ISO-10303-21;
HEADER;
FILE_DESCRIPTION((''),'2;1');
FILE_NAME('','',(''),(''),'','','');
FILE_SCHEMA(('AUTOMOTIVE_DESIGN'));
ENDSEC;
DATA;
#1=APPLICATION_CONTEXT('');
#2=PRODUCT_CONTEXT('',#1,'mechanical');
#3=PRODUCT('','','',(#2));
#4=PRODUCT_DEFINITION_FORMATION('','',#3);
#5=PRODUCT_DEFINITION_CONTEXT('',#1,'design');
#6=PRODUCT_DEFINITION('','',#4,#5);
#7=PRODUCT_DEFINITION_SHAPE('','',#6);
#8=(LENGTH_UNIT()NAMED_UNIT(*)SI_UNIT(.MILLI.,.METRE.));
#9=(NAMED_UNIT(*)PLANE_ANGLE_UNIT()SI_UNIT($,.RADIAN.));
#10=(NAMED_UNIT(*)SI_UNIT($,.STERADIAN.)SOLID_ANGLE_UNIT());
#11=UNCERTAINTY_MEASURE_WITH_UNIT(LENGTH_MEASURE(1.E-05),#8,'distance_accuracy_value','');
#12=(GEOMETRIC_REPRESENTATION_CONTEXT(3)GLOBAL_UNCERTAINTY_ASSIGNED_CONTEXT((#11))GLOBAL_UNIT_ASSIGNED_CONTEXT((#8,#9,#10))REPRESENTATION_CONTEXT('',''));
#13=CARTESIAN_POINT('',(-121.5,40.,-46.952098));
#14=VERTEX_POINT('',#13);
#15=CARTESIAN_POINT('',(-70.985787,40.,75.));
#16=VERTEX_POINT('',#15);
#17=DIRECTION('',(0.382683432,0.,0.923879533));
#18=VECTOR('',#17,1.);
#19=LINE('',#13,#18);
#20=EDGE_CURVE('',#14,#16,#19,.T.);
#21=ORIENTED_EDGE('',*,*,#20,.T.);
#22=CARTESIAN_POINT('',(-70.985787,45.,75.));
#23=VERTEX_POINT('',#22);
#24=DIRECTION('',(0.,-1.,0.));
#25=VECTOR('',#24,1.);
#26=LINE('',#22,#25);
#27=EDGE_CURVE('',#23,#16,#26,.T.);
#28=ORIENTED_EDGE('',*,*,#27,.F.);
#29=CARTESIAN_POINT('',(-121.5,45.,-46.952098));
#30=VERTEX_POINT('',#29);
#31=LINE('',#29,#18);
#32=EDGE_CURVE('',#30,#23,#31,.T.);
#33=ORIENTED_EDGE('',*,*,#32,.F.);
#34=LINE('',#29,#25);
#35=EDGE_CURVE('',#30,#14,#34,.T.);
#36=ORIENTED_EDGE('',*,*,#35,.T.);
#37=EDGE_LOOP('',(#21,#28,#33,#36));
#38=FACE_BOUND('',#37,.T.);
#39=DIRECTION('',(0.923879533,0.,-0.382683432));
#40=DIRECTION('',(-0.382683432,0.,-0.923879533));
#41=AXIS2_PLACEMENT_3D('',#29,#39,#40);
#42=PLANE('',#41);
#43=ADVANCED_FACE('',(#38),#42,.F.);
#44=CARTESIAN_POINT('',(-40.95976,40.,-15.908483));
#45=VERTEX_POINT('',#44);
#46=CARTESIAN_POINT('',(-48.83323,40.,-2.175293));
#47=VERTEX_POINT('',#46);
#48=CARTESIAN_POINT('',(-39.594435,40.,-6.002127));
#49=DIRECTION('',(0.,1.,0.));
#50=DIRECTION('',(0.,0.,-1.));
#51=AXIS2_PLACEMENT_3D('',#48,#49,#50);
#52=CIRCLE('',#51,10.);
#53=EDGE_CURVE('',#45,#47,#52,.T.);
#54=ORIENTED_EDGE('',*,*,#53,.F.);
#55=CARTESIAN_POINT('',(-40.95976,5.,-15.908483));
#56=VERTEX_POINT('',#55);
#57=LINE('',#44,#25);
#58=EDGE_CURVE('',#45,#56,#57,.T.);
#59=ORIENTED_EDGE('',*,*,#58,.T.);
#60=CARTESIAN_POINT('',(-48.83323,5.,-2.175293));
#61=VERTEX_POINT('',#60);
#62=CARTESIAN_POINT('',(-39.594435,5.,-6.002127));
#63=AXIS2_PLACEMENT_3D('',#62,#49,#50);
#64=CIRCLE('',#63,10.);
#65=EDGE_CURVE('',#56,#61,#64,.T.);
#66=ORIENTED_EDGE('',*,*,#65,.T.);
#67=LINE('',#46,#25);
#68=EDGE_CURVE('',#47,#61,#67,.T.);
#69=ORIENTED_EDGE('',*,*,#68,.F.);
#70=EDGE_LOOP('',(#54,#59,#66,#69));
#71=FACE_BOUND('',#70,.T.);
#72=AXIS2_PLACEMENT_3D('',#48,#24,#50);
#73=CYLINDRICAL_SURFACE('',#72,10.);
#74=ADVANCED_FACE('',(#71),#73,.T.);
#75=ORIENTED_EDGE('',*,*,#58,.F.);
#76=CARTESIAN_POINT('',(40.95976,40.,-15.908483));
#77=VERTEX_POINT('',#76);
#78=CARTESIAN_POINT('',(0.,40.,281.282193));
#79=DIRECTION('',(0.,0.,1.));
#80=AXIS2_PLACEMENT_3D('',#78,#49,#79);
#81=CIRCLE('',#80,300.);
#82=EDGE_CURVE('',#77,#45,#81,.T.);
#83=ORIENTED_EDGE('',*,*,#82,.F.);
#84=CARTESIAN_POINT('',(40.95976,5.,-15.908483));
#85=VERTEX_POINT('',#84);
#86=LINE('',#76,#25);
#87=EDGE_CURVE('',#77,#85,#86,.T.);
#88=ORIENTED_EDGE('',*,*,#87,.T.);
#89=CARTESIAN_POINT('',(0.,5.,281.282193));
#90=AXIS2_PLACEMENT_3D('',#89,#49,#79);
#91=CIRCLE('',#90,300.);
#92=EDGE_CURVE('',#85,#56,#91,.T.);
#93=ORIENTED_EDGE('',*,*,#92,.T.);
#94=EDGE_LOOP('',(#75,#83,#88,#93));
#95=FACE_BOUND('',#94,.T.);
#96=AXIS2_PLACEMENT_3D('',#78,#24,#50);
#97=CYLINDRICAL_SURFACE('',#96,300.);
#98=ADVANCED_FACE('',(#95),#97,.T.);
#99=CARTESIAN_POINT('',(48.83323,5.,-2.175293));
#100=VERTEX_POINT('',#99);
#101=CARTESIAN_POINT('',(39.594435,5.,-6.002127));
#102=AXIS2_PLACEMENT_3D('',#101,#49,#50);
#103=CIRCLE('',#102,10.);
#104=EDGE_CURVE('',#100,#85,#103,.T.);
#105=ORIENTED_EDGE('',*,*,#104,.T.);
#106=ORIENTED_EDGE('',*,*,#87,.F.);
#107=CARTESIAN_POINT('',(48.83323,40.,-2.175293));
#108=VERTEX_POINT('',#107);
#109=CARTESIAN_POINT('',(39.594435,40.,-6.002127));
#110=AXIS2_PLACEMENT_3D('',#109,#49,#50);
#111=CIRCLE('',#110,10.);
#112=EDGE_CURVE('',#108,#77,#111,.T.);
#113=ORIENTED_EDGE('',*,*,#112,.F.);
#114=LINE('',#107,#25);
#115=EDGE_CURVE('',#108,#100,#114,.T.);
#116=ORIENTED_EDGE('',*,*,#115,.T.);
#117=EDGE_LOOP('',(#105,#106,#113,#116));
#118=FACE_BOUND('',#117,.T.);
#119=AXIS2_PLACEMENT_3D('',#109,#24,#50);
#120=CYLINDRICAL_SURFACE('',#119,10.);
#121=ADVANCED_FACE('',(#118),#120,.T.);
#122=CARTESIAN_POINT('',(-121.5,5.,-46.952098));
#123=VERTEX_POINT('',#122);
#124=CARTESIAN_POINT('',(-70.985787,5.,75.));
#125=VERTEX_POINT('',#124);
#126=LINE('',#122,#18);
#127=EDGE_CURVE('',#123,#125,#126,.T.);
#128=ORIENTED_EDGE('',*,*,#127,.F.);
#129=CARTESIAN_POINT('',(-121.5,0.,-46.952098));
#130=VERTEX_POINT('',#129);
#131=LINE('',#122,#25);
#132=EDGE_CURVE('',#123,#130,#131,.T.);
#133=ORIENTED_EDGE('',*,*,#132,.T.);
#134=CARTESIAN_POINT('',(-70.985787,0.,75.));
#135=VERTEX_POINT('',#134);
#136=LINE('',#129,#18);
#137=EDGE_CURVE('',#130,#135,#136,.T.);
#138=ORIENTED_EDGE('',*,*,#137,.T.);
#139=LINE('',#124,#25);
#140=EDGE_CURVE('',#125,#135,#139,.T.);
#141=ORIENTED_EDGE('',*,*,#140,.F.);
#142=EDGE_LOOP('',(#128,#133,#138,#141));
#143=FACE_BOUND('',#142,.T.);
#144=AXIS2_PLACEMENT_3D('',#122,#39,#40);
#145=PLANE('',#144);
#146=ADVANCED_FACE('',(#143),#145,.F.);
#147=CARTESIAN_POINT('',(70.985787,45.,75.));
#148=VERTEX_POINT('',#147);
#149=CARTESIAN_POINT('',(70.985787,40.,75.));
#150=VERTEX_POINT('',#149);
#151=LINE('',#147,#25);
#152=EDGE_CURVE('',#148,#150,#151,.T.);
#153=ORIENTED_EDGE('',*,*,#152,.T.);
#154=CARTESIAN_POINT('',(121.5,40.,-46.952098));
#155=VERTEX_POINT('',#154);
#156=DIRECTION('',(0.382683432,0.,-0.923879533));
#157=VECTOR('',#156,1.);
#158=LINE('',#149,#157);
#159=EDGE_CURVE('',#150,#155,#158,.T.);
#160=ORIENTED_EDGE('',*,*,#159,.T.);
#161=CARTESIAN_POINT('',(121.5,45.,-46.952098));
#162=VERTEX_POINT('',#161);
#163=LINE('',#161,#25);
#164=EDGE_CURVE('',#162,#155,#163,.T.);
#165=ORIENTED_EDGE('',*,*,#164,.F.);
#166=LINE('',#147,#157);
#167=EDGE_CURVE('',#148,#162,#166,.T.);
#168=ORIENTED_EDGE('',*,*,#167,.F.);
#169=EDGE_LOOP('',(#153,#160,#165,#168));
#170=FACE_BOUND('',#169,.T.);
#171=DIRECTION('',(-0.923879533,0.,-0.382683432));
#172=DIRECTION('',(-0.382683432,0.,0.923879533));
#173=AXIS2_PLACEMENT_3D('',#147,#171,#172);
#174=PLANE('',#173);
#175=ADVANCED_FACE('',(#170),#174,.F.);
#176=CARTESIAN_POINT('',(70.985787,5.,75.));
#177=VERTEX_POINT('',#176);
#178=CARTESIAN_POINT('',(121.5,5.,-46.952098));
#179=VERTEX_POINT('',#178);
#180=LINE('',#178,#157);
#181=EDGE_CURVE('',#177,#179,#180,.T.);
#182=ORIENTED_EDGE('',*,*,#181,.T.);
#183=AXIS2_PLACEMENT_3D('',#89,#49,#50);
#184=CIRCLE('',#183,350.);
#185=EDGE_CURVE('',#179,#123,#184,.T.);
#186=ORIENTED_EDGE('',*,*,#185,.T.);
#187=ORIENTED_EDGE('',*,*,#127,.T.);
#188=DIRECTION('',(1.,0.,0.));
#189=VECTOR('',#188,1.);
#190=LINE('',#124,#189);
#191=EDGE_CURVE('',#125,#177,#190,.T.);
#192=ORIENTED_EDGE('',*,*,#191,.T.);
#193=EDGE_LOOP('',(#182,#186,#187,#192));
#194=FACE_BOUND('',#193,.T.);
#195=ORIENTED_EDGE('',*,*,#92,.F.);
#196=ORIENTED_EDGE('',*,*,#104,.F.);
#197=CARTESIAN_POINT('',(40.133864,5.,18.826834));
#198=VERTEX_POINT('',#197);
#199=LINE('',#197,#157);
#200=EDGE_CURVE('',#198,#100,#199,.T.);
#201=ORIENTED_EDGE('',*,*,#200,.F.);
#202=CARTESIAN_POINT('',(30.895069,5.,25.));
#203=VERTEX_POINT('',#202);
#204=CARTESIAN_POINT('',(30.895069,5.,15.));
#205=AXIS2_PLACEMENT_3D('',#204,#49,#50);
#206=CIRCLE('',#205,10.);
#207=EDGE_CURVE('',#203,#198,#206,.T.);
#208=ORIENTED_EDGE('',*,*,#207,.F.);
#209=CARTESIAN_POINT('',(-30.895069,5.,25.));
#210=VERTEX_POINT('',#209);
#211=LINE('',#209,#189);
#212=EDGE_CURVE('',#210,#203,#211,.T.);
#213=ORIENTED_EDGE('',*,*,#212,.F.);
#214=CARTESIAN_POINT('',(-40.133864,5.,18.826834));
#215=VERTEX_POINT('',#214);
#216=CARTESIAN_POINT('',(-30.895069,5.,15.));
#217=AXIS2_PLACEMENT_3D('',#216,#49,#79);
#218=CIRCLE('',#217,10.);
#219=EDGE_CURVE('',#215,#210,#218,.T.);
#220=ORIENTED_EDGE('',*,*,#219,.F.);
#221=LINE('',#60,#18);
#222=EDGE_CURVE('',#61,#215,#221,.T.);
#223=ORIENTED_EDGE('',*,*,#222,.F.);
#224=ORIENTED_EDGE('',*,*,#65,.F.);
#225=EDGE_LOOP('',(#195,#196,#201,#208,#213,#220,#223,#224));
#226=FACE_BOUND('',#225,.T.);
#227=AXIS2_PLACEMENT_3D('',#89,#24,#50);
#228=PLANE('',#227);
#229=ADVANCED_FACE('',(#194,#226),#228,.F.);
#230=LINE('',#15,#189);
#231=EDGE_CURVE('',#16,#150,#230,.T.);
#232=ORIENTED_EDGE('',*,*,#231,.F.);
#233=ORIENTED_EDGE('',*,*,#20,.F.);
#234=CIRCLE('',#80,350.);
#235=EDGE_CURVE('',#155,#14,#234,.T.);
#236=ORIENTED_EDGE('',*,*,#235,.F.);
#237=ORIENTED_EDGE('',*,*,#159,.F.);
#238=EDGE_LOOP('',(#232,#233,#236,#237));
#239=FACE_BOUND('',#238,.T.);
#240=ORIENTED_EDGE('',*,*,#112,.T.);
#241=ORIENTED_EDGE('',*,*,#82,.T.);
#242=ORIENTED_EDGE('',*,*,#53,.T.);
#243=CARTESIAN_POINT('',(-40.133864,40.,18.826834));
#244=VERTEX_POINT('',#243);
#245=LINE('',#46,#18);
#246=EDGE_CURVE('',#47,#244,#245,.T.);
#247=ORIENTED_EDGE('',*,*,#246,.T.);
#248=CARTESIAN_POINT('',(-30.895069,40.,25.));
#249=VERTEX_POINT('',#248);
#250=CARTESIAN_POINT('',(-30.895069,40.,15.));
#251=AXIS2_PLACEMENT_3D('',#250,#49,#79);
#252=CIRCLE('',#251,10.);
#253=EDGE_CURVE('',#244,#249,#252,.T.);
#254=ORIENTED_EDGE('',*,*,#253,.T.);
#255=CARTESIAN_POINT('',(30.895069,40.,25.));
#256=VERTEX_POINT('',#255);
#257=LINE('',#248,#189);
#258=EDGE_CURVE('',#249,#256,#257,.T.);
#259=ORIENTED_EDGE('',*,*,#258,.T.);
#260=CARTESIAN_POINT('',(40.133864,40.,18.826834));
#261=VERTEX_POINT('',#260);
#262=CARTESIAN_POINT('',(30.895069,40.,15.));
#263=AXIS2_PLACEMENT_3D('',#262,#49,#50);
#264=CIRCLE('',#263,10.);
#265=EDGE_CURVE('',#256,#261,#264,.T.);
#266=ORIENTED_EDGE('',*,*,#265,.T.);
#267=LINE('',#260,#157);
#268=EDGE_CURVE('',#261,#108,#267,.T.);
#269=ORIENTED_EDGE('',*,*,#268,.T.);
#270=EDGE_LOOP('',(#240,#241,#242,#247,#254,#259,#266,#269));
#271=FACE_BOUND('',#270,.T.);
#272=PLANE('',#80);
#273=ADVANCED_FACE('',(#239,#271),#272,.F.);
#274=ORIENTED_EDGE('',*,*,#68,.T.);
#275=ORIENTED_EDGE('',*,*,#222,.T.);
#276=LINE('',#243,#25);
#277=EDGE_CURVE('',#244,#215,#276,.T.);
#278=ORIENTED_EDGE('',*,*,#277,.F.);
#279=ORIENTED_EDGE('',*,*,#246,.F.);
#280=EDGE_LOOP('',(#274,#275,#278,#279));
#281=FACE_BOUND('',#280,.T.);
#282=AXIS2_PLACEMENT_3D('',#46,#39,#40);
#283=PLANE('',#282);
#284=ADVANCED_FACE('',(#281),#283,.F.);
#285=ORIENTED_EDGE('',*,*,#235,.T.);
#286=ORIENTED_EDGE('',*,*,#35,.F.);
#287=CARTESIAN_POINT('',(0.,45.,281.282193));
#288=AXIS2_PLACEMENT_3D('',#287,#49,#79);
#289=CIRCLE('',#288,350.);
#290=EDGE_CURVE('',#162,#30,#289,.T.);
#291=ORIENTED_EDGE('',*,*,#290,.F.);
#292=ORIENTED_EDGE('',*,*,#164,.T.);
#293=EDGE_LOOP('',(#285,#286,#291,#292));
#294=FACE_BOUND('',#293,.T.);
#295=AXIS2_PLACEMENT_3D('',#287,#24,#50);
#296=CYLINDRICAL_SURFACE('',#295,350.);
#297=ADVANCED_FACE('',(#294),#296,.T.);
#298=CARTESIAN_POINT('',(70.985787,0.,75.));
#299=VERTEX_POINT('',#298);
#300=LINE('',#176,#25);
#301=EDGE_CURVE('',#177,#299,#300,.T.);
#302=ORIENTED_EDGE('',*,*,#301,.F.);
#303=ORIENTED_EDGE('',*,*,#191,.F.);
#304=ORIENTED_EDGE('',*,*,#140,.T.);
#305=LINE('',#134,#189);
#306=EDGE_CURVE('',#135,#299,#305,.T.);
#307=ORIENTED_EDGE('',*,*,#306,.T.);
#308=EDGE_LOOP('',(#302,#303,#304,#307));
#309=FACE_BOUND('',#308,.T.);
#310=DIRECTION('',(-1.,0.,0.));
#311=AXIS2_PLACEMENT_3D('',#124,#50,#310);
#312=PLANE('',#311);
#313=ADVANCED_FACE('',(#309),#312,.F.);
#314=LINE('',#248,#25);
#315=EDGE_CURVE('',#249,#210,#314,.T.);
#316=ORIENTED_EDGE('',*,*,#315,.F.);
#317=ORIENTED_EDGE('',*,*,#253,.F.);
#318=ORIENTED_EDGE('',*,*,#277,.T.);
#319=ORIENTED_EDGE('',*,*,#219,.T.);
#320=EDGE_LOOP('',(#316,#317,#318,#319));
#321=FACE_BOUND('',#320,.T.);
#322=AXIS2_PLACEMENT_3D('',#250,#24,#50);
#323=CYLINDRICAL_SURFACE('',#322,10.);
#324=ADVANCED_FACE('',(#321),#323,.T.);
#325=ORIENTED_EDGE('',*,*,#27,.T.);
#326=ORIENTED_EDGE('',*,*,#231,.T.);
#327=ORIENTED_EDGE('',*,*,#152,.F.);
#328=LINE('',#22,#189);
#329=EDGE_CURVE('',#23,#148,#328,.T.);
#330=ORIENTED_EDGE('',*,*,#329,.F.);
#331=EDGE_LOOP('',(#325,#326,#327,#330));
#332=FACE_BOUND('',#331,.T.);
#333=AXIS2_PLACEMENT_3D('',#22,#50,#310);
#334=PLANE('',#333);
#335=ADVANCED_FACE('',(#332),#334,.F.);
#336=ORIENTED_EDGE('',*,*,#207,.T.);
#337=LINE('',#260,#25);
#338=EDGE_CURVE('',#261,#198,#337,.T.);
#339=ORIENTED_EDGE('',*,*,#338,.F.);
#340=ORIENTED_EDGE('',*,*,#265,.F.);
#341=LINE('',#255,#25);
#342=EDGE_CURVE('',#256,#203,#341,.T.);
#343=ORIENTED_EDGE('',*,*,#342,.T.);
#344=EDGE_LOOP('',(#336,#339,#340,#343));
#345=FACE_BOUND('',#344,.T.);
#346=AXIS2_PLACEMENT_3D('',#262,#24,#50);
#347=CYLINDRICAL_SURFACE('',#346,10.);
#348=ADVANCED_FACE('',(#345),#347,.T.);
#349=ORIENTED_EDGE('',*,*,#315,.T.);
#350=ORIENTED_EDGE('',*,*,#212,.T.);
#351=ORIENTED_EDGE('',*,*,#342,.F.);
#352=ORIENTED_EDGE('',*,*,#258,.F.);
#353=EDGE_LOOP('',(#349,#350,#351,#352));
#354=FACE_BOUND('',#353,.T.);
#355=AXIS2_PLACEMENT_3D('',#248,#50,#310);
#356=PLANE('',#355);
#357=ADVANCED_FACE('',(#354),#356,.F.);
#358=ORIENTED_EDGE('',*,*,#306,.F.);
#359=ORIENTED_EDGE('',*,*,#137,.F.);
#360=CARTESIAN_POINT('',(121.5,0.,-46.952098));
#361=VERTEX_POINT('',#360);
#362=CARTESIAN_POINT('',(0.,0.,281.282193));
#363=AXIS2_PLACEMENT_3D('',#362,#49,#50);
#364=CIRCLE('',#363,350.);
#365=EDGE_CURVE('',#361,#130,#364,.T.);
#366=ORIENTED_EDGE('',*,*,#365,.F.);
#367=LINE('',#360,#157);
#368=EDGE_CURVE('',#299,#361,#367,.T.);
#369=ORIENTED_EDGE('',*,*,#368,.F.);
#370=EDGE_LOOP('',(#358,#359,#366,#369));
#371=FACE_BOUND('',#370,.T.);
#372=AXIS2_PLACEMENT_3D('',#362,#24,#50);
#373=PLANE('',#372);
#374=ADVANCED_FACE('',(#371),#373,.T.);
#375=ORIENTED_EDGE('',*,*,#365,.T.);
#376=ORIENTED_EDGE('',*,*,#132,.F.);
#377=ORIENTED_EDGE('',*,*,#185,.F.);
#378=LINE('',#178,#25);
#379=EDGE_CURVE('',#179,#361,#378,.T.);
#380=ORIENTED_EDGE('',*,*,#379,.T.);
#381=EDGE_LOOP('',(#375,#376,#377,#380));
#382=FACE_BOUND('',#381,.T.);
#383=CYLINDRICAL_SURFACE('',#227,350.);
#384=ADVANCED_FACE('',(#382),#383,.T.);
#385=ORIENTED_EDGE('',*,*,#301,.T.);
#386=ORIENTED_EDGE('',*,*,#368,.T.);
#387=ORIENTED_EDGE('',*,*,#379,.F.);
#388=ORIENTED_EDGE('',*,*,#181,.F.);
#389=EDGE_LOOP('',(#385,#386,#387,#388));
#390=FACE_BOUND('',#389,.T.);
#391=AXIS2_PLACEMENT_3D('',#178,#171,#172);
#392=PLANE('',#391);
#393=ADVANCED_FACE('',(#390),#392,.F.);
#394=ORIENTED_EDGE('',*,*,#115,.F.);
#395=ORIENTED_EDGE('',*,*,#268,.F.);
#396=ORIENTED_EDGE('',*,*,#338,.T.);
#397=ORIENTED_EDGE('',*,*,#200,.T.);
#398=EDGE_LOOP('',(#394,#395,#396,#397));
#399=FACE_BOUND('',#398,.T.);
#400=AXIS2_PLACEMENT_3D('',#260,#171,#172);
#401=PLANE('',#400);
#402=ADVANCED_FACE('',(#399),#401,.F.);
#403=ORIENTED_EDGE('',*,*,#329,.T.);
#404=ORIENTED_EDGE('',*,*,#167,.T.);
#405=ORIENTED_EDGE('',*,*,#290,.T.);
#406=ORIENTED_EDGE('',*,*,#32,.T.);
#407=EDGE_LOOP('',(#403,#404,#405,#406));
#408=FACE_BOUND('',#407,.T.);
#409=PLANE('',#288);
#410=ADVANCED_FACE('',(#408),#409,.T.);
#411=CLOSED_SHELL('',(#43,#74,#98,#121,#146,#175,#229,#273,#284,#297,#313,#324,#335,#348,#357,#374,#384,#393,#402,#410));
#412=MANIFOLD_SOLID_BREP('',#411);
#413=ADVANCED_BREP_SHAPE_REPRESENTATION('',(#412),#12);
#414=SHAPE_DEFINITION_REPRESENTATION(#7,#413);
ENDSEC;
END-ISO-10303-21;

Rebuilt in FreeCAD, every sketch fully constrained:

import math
import FreeCAD as App
import Part
import Sketcher

V = App.Vector
Q = App.Units.Quantity

doc = App.newDocument("Part")
params = doc.addObject("Spreadsheet::Sheet", "Params")
for row, (alias, value) in enumerate([
    ("sketch1_radius", "350 mm"),
    ("sketch1_length", "132 mm"),
    ("pad1_length", "5 mm"),
    ("sketch2_radius", "10 mm"),
    ("sketch2_radius2", "300 mm"),
    ("pad2_length", "35 mm"),
    ("sketch3_radius", "350 mm"),
    ("sketch3_length", "132 mm"),
    ("pad3_length", "5 mm"),
], start=1):
    params.set(f"A{row}", alias)
    params.set(f"B{row}", "=" + value)
    params.setAlias(f"B{row}", alias)

body = doc.addObject("PartDesign::Body", "Body")

# Sketch on XZ plane
sketch1 = body.newObject("Sketcher::SketchObject", "Sketch")
sketch1.AttachmentSupport = (doc.getObject("XZ_Plane"), [""])
sketch1.MapMode = "FlatFace"
sketch1.addGeometry(Part.LineSegment(V(-122, -47, 0), V(-71, 75, 0)), False)
sketch1.addGeometry(Part.LineSegment(V(-71, 75, 0), V(71, 75, 0)), False)
sketch1.addGeometry(Part.LineSegment(V(71, 75, 0), V(122, -47, 0)), False)
sketch1.addGeometry(Part.ArcOfCircle(Part.Circle(V(0, 281, 0), V(0, 0, 1), 350), math.radians(-110), math.radians(-70)), False)
sketch1.addConstraint(Sketcher.Constraint("Coincident", 0, 2, 1, 1))
sketch1.addConstraint(Sketcher.Constraint("Coincident", 1, 2, 2, 1))
sketch1.addConstraint(Sketcher.Constraint("Coincident", 2, 2, 3, 2))
sketch1.addConstraint(Sketcher.Constraint("Coincident", 3, 1, 0, 1))
sketch1.addConstraint(Sketcher.Constraint("Horizontal", 1))
sketch1.addConstraint(Sketcher.Constraint("Symmetric", 2, 2, 3, 1, -2))
sketch1.addConstraint(Sketcher.Constraint("Equal", 0, 2))
sketch1.addConstraint(Sketcher.Constraint("Radius", 3, 350.0))
sketch1.addConstraint(Sketcher.Constraint("Distance", 0, 132.0))
sketch1.addConstraint(Sketcher.Constraint("DistanceY", -1, 1, 0, 2, 75.0))
sketch1.addConstraint(Sketcher.Constraint("Angle", 0, Q("67.5 deg")))
sketch1.addConstraint(Sketcher.Constraint("DistanceX", 3, 1, 2, 2, 243.0))
sketch1.setExpression("Constraints[7]", "Params.sketch1_radius")
sketch1.setExpression("Constraints[8]", "Params.sketch1_length")
pad1 = body.newObject("PartDesign::Pad", "Pad")
pad1.Profile = sketch1
pad1.setExpression("Length", "Params.pad1_length")
pad1.Reversed = True

# Sketch on XZ plane
sketch2 = body.newObject("Sketcher::SketchObject", "Sketch001")
sketch2.AttachmentSupport = (doc.getObject("XZ_Plane"), [""])
sketch2.MapMode = "FlatFace"
sketch2.AttachmentOffset = App.Placement(V(0, 0, -5), App.Rotation())
sketch2.addGeometry(Part.LineSegment(V(-49, -2, 0), V(-40, 19, 0)), False)
sketch2.addGeometry(Part.ArcOfCircle(Part.Circle(V(-31, 15, 0), V(0, 0, 1), 10), math.radians(90), math.radians(157)), False)
sketch2.addGeometry(Part.LineSegment(V(-31, 25, 0), V(31, 25, 0)), False)
sketch2.addGeometry(Part.ArcOfCircle(Part.Circle(V(31, 15, 0), V(0, 0, 1), 10), math.radians(23), math.radians(90)), False)
sketch2.addGeometry(Part.LineSegment(V(40, 19, 0), V(49, -2, 0)), False)
sketch2.addGeometry(Part.ArcOfCircle(Part.Circle(V(40, -6, 0), V(0, 0, 1), 10), math.radians(-82), math.radians(23)), False)
sketch2.addGeometry(Part.ArcOfCircle(Part.Circle(V(0, 281, 0), V(0, 0, 1), 300), math.radians(-97.85), math.radians(-82.15)), False)
sketch2.addGeometry(Part.ArcOfCircle(Part.Circle(V(-40, -6, 0), V(0, 0, 1), 10), math.radians(157), math.radians(262)), False)
sketch2.addConstraint(Sketcher.Constraint("Tangent", 0, 2, 1, 2))
sketch2.addConstraint(Sketcher.Constraint("Tangent", 1, 1, 2, 1))
sketch2.addConstraint(Sketcher.Constraint("Tangent", 2, 2, 3, 2))
sketch2.addConstraint(Sketcher.Constraint("Tangent", 3, 1, 4, 1))
sketch2.addConstraint(Sketcher.Constraint("Tangent", 4, 2, 5, 2))
sketch2.addConstraint(Sketcher.Constraint("Tangent", 5, 1, 6, 2))
sketch2.addConstraint(Sketcher.Constraint("Tangent", 6, 1, 7, 2))
sketch2.addConstraint(Sketcher.Constraint("Tangent", 7, 1, 0, 1))
sketch2.addConstraint(Sketcher.Constraint("Horizontal", 2))
sketch2.addConstraint(Sketcher.Constraint("Equal", 1, 3))
sketch2.addConstraint(Sketcher.Constraint("Equal", 3, 5))
sketch2.addConstraint(Sketcher.Constraint("Equal", 5, 7))
sketch2.addConstraint(Sketcher.Constraint("Symmetric", 5, 3, 7, 3, -2))
sketch2.addConstraint(Sketcher.Constraint("Horizontal", 0, 2, 3, 1))
sketch2.addConstraint(Sketcher.Constraint("Radius", 1, 10.0))
sketch2.addConstraint(Sketcher.Constraint("Radius", 6, 300.0))
sketch2.addConstraint(Sketcher.Constraint("DistanceY", -1, 1, 1, 3, 15.0))
sketch2.addConstraint(Sketcher.Constraint("Angle", 0, Q("67.5 deg")))
sketch2.addConstraint(Sketcher.Constraint("DistanceX", 0, 2, 5, 3, 79.728299))
sketch2.addConstraint(Sketcher.Constraint("Distance", 0, 22.732539))
sketch2.setExpression("Constraints[14]", "Params.sketch2_radius")
sketch2.setExpression("Constraints[15]", "Params.sketch2_radius2")
pad2 = body.newObject("PartDesign::Pad", "Pad001")
pad2.Profile = sketch2
pad2.setExpression("Length", "Params.pad2_length")
pad2.Reversed = True

# Sketch on XZ plane
sketch3 = body.newObject("Sketcher::SketchObject", "Sketch002")
sketch3.AttachmentSupport = (doc.getObject("XZ_Plane"), [""])
sketch3.MapMode = "FlatFace"
sketch3.AttachmentOffset = App.Placement(V(0, 0, -40), App.Rotation())
sketch3.addGeometry(Part.LineSegment(V(-122, -47, 0), V(-71, 75, 0)), False)
sketch3.addGeometry(Part.LineSegment(V(-71, 75, 0), V(71, 75, 0)), False)
sketch3.addGeometry(Part.LineSegment(V(71, 75, 0), V(122, -47, 0)), False)
sketch3.addGeometry(Part.ArcOfCircle(Part.Circle(V(0, 281, 0), V(0, 0, 1), 350), math.radians(-110), math.radians(-70)), False)
sketch3.addConstraint(Sketcher.Constraint("Coincident", 0, 2, 1, 1))
sketch3.addConstraint(Sketcher.Constraint("Coincident", 1, 2, 2, 1))
sketch3.addConstraint(Sketcher.Constraint("Coincident", 2, 2, 3, 2))
sketch3.addConstraint(Sketcher.Constraint("Coincident", 3, 1, 0, 1))
sketch3.addConstraint(Sketcher.Constraint("Horizontal", 1))
sketch3.addConstraint(Sketcher.Constraint("Symmetric", 2, 2, 3, 1, -2))
sketch3.addConstraint(Sketcher.Constraint("Equal", 0, 2))
sketch3.addConstraint(Sketcher.Constraint("Radius", 3, 350.0))
sketch3.addConstraint(Sketcher.Constraint("Distance", 0, 132.0))
sketch3.addConstraint(Sketcher.Constraint("DistanceY", -1, 1, 0, 2, 75.0))
sketch3.addConstraint(Sketcher.Constraint("Angle", 0, Q("67.5 deg")))
sketch3.addConstraint(Sketcher.Constraint("DistanceX", 3, 1, 2, 2, 243.0))
sketch3.setExpression("Constraints[7]", "Params.sketch3_radius")
sketch3.setExpression("Constraints[8]", "Params.sketch3_length")
pad3 = body.newObject("PartDesign::Pad", "Pad002")
pad3.Profile = sketch3
pad3.setExpression("Length", "Params.pad3_length")
pad3.Reversed = True

doc.recompute()
